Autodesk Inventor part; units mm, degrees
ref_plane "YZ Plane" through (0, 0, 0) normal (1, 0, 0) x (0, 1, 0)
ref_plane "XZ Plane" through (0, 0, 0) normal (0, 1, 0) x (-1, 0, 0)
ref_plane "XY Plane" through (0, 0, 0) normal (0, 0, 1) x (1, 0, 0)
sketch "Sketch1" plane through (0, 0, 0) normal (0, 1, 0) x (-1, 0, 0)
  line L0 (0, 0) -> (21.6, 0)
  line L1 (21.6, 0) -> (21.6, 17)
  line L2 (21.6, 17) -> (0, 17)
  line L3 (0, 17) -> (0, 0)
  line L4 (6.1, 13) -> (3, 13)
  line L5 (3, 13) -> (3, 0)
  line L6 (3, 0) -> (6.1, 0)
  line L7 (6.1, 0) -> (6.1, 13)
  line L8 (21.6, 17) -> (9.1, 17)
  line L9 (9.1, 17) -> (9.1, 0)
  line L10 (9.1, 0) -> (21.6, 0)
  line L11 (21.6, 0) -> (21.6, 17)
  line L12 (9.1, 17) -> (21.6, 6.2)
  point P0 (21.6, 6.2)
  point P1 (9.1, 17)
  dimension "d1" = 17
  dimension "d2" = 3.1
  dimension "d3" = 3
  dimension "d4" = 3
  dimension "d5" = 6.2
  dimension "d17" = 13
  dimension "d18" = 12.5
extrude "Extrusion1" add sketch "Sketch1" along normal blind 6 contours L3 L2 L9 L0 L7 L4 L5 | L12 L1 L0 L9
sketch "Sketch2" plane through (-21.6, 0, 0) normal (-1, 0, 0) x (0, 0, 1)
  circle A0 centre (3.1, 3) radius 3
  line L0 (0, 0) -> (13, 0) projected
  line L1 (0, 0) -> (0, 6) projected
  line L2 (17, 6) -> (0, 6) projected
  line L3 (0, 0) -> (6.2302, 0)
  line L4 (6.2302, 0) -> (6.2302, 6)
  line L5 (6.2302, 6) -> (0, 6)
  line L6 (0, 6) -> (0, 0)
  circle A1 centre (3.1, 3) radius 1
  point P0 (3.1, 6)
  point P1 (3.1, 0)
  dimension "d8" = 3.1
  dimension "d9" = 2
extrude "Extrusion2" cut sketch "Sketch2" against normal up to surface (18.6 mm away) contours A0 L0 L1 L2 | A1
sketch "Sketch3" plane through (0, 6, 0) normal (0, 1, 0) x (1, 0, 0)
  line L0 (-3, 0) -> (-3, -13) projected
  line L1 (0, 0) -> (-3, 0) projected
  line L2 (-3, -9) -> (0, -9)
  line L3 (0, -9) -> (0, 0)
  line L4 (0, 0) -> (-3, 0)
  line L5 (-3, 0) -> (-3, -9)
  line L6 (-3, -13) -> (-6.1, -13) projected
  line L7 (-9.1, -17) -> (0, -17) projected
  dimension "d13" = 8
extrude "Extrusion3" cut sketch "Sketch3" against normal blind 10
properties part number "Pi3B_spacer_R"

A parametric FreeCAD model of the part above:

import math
import FreeCAD as App
import Part
import Sketcher
Q = App.Units.Quantity

doc = App.newDocument("Part")
params = doc.addObject("Spreadsheet::Sheet", "Params")
for row, (alias, value) in enumerate([
    ("sketch1_width", "3 mm"),
    ("sketch1_height", "17 mm"),
    ("sketch1_height2", "13 mm"),
    ("sketch1_width2", "3.1 mm"),
    ("sketch1_height3", "6.2 mm"),
    ("pad1_length", "6 mm"),
    ("sketch2_diameter", "2 mm"),
    ("sketch2_height", "3.1 mm"),
    ("sketch2_radius", "3 mm"),
    ("pocket1_length", "18.6 mm"),
    ("sketch3_width", "3 mm"),
    ("sketch3_height", "9 mm"),
    ("pocket2_length", "10 mm"),
], start=1):
    params.set(f"A{row}", alias)
    params.set(f"B{row}", "=" + value)
    params.setAlias(f"B{row}", alias)

body = doc.addObject("PartDesign::Body", "Body")

# Sketch on XZ plane
sketch1 = body.newObject("Sketcher::SketchObject", "Sketch")
sketch1.AttachmentSupport = (doc.getObject("XZ_Plane"), [""])
sketch1.MapMode = "FlatFace"
sketch1.addGeometry(Part.LineSegment(App.Vector(0, 17, 0), App.Vector(0, 0, 0)), False)
sketch1.addGeometry(Part.LineSegment(App.Vector(0, 0, 0), App.Vector(-3, 0, 0)), False)
sketch1.addGeometry(Part.LineSegment(App.Vector(-3, 0, 0), App.Vector(-3, 13, 0)), False)
sketch1.addGeometry(Part.LineSegment(App.Vector(-3, 13, 0), App.Vector(-6.1, 13, 0)), False)
sketch1.addGeometry(Part.LineSegment(App.Vector(-6.1, 13, 0), App.Vector(-6.1, 0, 0)), False)
sketch1.addGeometry(Part.LineSegment(App.Vector(-6.1, 0, 0), App.Vector(-21.6, 0, 0)), False)
sketch1.addGeometry(Part.LineSegment(App.Vector(-21.6, 0, 0), App.Vector(-21.6, 6.2, 0)), False)
sketch1.addGeometry(Part.LineSegment(App.Vector(-21.6, 6.2, 0), App.Vector(-9.1, 17, 0)), False)
sketch1.addGeometry(Part.LineSegment(App.Vector(-9.1, 17, 0), App.Vector(0, 17, 0)), False)
sketch1.addConstraint(Sketcher.Constraint("Coincident", 0, 2, 1, 1))
sketch1.addConstraint(Sketcher.Constraint("Coincident", 1, 2, 2, 1))
sketch1.addConstraint(Sketcher.Constraint("Coincident", 2, 2, 3, 1))
sketch1.addConstraint(Sketcher.Constraint("Coincident", 3, 2, 4, 1))
sketch1.addConstraint(Sketcher.Constraint("Coincident", 4, 2, 5, 1))
sketch1.addConstraint(Sketcher.Constraint("Coincident", 5, 2, 6, 1))
sketch1.addConstraint(Sketcher.Constraint("Coincident", 6, 2, 7, 1))
sketch1.addConstraint(Sketcher.Constraint("Coincident", 7, 2, 8, 1))
sketch1.addConstraint(Sketcher.Constraint("Coincident", 8, 2, 0, 1))
sketch1.addConstraint(Sketcher.Constraint("Vertical", 0))
sketch1.addConstraint(Sketcher.Constraint("Horizontal", 1))
sketch1.addConstraint(Sketcher.Constraint("Vertical", 2))
sketch1.addConstraint(Sketcher.Constraint("Horizontal", 3))
sketch1.addConstraint(Sketcher.Constraint("Vertical", 4))
sketch1.addConstraint(Sketcher.Constraint("Horizontal", 5))
sketch1.addConstraint(Sketcher.Constraint("Vertical", 6))
sketch1.addConstraint(Sketcher.Constraint("Horizontal", 8))
sketch1.addConstraint(Sketcher.Constraint("Coincident", 0, 2, -1, 1))
sketch1.addConstraint(Sketcher.Constraint("PointOnObject", 4, 2, -1))
sketch1.addConstraint(Sketcher.Constraint("DistanceX", 1, 2, 1, 1, Q("3 mm")))
sketch1.addConstraint(Sketcher.Constraint("DistanceY", 0, 2, 0, 1, Q("17 mm")))
sketch1.addConstraint(Sketcher.Constraint("DistanceY", 2, 1, 2, 2, Q("13 mm")))
sketch1.addConstraint(Sketcher.Constraint("DistanceX", 3, 2, 3, 1, Q("3.1 mm")))
sketch1.addConstraint(Sketcher.Constraint("DistanceY", 6, 1, 6, 2, Q("6.2 mm")))
sketch1.addConstraint(Sketcher.Constraint("DistanceX", 7, 2, 3, 2, Q("3 mm")))
sketch1.addConstraint(Sketcher.Constraint("DistanceX", 6, 2, 7, 2, Q("12.5 mm")))
sketch1.setExpression("Constraints[19]", "Params.sketch1_width")
sketch1.setExpression("Constraints[20]", "Params.sketch1_height")
sketch1.setExpression("Constraints[21]", "Params.sketch1_height2")
sketch1.setExpression("Constraints[22]", "Params.sketch1_width2")
sketch1.setExpression("Constraints[23]", "Params.sketch1_height3")
pad1 = body.newObject("PartDesign::Pad", "Pad")
pad1.Profile = sketch1
pad1.setExpression("Length", "Params.pad1_length")
pad1.Reversed = True

# Sketch on YZ plane
sketch2 = body.newObject("Sketcher::SketchObject", "Sketch001")
sketch2.AttachmentSupport = (doc.getObject("YZ_Plane"), [""])
sketch2.MapMode = "FlatFace"
sketch2.AttachmentOffset = App.Placement(App.Vector(0, 0, -21.6), App.Rotation())
sketch2.addGeometry(Part.ArcOfCircle(Part.Circle(App.Vector(3, 3.1, 0), App.Vector(0, 0, 1), 3), math.radians(180), math.radians(360)), False)
sketch2.addGeometry(Part.LineSegment(App.Vector(6, 3.1, 0), App.Vector(6, 0, 0)), False)
sketch2.addGeometry(Part.LineSegment(App.Vector(6, 0, 0), App.Vector(0, 0, 0)), False)
sketch2.addGeometry(Part.LineSegment(App.Vector(0, 0, 0), App.Vector(0, 3.1, 0)), False)
sketch2.addGeometry(Part.Circle(App.Vector(3, 3.1, 0), App.Vector(0, 0, 1), 1), False)
sketch2.addConstraint(Sketcher.Constraint("Tangent", 0, 2, 1, 1))
sketch2.addConstraint(Sketcher.Constraint("Coincident", 1, 2, 2, 1))
sketch2.addConstraint(Sketcher.Constraint("Coincident", 2, 2, 3, 1))
sketch2.addConstraint(Sketcher.Constraint("Tangent", 3, 2, 0, 1))
sketch2.addConstraint(Sketcher.Constraint("Vertical", 1))
sketch2.addConstraint(Sketcher.Constraint("Horizontal", 2))
sketch2.addConstraint(Sketcher.Constraint("Vertical", 3))
sketch2.addConstraint(Sketcher.Constraint("Coincident", 2, 2, -1, 1))
sketch2.addConstraint(Sketcher.Constraint("Coincident", 4, 3, 0, 3))
sketch2.addConstraint(Sketcher.Constraint("Diameter", 4, Q("2 mm")))
sketch2.addConstraint(Sketcher.Constraint("DistanceY", 1, 2, 1, 1, Q("3.1 mm")))
sketch2.addConstraint(Sketcher.Constraint("Radius", 0, Q("3 mm")))
sketch2.setExpression("Constraints[9]", "Params.sketch2_diameter")
sketch2.setExpression("Constraints[10]", "Params.sketch2_height")
sketch2.setExpression("Constraints[11]", "Params.sketch2_radius")
pocket1 = body.newObject("PartDesign::Pocket", "Pocket")
pocket1.Profile = sketch2
pocket1.setExpression("Length", "Params.pocket1_length")
pocket1.Reversed = True

# Sketch on XZ plane
sketch3 = body.newObject("Sketcher::SketchObject", "Sketch002")
sketch3.AttachmentSupport = (doc.getObject("XZ_Plane"), [""])
sketch3.MapMode = "FlatFace"
sketch3.AttachmentOffset = App.Placement(App.Vector(0, 0, -6), App.Rotation())
sketch3.addGeometry(Part.LineSegment(App.Vector(0, 0, 0), App.Vector(-3, 0, 0)), False)
sketch3.addGeometry(Part.LineSegment(App.Vector(-3, 0, 0), App.Vector(-3, 9, 0)), False)
sketch3.addGeometry(Part.LineSegment(App.Vector(-3, 9, 0), App.Vector(0, 9, 0)), False)
sketch3.addGeometry(Part.LineSegment(App.Vector(0, 9, 0), App.Vector(0, 0, 0)), False)
sketch3.addConstraint(Sketcher.Constraint("Coincident", 0, 2, 1, 1))
sketch3.addConstraint(Sketcher.Constraint("Coincident", 1, 2, 2, 1))
sketch3.addConstraint(Sketcher.Constraint("Coincident", 2, 2, 3, 1))
sketch3.addConstraint(Sketcher.Constraint("Coincident", 3, 2, 0, 1))
sketch3.addConstraint(Sketcher.Constraint("Horizontal", 0))
sketch3.addConstraint(Sketcher.Constraint("Vertical", 1))
sketch3.addConstraint(Sketcher.Constraint("Horizontal", 2))
sketch3.addConstraint(Sketcher.Constraint("Vertical", 3))
sketch3.addConstraint(Sketcher.Constraint("Coincident", 3, 2, -1, 1))
sketch3.addConstraint(Sketcher.Constraint("DistanceX", 0, 2, 0, 1, Q("3 mm")))
sketch3.addConstraint(Sketcher.Constraint("DistanceY", 1, 1, 1, 2, Q("9 mm")))
sketch3.setExpression("Constraints[9]", "Params.sketch3_width")
sketch3.setExpression("Constraints[10]", "Params.sketch3_height")
pocket2 = body.newObject("PartDesign::Pocket", "Pocket001")
pocket2.Profile = sketch3
pocket2.setExpression("Length", "Params.pocket2_length")
pocket2.Reversed = True

doc.recompute()
